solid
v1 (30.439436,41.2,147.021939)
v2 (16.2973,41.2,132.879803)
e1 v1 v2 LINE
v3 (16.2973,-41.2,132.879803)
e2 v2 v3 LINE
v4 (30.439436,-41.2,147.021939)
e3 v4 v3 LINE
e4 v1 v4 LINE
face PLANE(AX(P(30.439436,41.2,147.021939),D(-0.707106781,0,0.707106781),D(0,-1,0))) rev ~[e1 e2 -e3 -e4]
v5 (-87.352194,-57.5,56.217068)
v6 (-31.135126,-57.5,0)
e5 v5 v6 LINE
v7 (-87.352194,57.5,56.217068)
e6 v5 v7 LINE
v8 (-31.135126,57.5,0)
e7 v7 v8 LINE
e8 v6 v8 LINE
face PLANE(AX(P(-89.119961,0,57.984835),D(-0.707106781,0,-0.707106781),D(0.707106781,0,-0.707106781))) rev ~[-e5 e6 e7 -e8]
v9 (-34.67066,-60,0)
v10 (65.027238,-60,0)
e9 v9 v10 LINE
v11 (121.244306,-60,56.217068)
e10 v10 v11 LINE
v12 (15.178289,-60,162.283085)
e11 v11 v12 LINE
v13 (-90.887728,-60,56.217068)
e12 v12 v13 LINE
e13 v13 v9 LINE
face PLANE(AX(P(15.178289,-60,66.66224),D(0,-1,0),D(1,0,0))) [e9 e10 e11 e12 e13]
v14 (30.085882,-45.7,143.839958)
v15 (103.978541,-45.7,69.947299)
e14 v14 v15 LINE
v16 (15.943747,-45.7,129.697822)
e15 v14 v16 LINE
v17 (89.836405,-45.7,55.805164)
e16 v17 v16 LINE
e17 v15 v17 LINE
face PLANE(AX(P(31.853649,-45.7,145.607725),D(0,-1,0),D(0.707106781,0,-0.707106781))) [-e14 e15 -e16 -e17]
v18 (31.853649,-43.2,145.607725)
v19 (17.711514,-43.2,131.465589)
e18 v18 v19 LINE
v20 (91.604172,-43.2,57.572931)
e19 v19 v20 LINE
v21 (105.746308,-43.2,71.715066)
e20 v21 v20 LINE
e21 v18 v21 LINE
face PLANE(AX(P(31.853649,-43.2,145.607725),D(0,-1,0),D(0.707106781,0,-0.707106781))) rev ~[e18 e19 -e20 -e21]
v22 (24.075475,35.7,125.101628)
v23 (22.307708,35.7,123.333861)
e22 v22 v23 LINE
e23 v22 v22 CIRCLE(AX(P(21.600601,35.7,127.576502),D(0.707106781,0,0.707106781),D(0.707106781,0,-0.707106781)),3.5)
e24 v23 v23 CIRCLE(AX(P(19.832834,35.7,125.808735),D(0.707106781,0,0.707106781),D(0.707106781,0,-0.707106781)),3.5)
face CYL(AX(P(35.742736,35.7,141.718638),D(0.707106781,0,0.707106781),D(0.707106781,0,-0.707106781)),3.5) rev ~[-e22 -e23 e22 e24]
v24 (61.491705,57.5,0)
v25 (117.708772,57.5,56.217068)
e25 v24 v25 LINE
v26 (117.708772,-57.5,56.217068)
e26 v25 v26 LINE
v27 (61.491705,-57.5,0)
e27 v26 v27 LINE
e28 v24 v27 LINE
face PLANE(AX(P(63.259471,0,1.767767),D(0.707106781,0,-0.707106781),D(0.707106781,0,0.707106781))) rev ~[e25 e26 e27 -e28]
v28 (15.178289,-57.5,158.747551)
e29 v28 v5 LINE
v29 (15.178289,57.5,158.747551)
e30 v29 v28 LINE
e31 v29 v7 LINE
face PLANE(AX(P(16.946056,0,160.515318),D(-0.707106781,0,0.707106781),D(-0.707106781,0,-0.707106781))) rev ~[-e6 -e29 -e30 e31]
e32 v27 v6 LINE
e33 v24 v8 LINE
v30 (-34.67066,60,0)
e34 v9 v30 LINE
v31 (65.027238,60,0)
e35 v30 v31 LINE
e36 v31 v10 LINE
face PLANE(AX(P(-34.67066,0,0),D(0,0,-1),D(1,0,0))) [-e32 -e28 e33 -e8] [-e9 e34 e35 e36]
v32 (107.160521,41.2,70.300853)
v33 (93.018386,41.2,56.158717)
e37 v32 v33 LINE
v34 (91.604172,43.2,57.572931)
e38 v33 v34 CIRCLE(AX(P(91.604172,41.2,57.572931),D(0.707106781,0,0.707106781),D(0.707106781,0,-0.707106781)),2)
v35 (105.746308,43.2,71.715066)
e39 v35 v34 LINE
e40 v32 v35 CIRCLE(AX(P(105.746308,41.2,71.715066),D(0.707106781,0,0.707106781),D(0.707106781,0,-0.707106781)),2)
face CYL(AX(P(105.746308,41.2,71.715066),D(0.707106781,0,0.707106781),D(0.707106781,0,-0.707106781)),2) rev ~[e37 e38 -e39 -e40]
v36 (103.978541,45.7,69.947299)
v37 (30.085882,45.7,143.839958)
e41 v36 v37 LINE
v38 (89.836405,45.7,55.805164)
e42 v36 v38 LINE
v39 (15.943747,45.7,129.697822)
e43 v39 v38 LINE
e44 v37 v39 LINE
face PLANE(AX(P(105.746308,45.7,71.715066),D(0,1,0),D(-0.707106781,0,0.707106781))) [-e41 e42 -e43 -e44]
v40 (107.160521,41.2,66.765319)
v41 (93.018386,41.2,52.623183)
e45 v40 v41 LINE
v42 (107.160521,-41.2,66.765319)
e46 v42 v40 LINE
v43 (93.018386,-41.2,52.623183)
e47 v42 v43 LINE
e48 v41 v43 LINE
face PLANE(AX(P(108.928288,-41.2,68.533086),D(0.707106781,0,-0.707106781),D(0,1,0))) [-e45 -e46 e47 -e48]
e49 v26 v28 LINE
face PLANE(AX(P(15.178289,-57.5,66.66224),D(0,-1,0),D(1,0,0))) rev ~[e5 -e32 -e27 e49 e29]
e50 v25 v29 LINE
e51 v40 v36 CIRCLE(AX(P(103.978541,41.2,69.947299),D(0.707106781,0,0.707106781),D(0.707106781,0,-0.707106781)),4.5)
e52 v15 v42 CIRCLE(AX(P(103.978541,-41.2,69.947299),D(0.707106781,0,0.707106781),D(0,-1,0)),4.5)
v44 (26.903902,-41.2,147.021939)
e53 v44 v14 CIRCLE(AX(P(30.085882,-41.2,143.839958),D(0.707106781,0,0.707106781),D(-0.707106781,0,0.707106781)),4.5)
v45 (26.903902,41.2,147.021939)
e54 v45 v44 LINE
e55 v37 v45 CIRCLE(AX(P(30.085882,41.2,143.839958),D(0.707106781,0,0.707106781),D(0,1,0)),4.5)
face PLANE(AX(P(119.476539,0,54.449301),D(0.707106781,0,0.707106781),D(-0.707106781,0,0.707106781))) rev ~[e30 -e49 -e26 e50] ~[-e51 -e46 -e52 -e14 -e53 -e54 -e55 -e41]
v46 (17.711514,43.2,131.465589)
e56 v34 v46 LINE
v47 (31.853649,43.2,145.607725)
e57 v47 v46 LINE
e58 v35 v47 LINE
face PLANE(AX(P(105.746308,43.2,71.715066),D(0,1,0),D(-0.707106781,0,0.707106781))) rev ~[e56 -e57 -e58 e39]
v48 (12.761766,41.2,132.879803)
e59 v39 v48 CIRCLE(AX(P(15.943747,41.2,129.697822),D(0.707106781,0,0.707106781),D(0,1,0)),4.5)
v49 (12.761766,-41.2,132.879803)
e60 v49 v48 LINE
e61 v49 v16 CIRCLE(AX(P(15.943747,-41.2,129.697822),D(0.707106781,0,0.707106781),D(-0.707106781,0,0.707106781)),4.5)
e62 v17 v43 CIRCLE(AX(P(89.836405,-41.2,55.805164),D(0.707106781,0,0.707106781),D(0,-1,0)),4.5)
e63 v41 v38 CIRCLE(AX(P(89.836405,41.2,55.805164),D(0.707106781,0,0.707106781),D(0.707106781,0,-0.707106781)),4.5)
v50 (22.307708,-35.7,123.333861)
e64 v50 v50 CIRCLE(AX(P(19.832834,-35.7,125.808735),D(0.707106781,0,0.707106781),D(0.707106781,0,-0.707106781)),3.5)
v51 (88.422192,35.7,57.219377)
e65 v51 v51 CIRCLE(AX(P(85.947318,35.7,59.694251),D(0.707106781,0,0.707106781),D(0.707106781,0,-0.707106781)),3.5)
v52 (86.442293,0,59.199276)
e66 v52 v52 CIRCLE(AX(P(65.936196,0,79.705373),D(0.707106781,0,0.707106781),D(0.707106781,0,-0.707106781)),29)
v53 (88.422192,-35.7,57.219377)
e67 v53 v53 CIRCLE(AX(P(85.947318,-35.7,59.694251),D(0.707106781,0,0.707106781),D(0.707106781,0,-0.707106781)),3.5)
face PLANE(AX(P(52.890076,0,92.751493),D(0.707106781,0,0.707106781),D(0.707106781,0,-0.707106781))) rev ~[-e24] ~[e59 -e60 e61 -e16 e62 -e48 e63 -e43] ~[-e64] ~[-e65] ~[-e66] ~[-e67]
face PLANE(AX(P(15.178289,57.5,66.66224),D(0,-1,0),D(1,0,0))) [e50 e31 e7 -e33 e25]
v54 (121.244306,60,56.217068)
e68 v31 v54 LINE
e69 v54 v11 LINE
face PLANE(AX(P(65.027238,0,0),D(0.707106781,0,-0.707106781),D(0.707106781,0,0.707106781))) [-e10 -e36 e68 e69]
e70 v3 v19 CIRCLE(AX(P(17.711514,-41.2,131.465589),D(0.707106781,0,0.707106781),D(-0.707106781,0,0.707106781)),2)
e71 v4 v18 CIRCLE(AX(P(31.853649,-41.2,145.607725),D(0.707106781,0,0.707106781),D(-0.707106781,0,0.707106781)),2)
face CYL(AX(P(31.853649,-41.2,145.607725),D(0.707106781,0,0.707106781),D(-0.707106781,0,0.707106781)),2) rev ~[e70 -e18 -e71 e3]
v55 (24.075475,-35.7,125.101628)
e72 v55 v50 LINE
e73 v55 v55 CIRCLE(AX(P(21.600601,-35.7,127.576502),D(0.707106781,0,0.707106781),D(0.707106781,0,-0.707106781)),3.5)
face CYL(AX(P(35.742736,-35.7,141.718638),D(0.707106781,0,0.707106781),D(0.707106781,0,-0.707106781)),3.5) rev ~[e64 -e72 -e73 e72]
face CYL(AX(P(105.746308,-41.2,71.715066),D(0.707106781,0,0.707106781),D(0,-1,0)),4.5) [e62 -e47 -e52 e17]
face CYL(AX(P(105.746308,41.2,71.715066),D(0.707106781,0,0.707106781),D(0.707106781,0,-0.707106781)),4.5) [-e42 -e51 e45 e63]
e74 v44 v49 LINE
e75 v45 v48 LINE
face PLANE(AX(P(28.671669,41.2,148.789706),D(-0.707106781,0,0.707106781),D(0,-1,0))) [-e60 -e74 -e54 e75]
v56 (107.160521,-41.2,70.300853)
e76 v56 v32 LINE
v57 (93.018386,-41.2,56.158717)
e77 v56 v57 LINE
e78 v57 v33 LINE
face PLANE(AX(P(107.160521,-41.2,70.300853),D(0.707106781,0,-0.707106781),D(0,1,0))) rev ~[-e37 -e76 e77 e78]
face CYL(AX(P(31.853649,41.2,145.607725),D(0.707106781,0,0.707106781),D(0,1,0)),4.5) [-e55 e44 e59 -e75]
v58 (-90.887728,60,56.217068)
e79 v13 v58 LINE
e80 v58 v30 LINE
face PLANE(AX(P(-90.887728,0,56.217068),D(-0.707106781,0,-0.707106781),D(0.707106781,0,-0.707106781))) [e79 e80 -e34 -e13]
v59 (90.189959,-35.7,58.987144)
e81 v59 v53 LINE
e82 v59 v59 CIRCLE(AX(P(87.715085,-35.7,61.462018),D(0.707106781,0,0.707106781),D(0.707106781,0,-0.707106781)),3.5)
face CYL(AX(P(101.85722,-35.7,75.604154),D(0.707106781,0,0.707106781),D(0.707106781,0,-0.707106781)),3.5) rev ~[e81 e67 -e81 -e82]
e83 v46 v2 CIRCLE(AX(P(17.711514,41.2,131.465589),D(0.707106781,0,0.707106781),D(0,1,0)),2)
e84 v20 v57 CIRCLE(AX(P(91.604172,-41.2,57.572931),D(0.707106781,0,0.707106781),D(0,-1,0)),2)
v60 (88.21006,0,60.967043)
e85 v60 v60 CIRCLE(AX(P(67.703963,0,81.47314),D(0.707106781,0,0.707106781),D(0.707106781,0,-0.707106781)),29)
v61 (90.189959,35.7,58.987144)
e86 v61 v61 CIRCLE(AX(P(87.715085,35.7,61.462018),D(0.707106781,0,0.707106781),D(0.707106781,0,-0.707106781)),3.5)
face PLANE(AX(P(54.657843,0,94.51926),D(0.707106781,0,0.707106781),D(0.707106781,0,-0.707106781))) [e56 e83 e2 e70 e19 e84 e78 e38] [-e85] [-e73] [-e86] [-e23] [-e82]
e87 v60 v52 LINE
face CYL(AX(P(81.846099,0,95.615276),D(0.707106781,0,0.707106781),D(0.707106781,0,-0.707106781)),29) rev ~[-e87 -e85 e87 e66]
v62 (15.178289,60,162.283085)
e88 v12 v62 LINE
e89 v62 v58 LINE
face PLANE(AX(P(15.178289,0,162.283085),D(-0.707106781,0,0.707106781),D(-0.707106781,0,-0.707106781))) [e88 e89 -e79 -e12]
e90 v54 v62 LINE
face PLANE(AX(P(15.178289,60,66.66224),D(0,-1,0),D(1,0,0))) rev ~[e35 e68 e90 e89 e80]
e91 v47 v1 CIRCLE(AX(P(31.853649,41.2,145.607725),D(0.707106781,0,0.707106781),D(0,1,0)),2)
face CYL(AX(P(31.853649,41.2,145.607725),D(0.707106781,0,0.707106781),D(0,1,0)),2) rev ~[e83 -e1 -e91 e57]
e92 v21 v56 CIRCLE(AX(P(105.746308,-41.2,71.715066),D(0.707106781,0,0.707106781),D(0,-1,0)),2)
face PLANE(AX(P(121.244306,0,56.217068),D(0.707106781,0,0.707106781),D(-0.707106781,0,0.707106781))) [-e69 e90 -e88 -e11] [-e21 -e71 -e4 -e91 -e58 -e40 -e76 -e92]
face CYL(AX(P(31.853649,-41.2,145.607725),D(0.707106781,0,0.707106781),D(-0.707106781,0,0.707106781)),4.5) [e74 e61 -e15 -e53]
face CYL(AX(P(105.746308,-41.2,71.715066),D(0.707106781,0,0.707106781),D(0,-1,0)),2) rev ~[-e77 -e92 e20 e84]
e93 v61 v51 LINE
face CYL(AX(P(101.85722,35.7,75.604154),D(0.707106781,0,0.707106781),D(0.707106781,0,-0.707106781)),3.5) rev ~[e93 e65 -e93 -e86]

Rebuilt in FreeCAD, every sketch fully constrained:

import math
import FreeCAD as App
import Part
import Sketcher
from FreeCAD import Vector


def faces_at(feature, points):
    """Names of the faces that lie closest to the given points."""
    faces = feature.Shape.Faces
    near = lambda p: min(range(len(faces)), key=lambda i: faces[i].distToShape(Part.Vertex(*p))[0])
    return sorted({f"Face{near(p) + 1}" for p in points})


def add_polygon(sketch, points):
    """Adds a closed chain of lines whose ends are joined by coincident constraints."""
    first, n = sketch.GeometryCount, len(points)
    for a, b in zip(points, points[1:] + points[:1]):
        sketch.addGeometry(Part.LineSegment(App.Vector(*a, 0), App.Vector(*b, 0)), False)
    for i in range(n):
        sketch.addConstraint(Sketcher.Constraint("Coincident", first + i, 2, first + (i + 1) % n, 1))

doc = App.newDocument("Part")
params = doc.addObject("Spreadsheet::Sheet", "Params")
for row, (alias, value) in enumerate([
    ("sketch1_length", "150 mm"),
    ("pad1_length", "120 mm"),
    ("sketch2_radius", "2 mm"),
    ("sketch2_width", "104.5 mm"),
    ("sketch2_height", "82.4 mm"),
    ("pocket1_length", "20 mm"),
    ("thickness_wall", "2.5 mm"),
    ("sketch3_diameter", "58 mm"),
    ("sketch3_diameter2", "7 mm"),
    ("pocket2_length", "40 mm"),
], start=1):
    params.set(f"A{row}", alias)
    params.set(f"B{row}", "=" + value)
    params.setAlias(f"B{row}", alias)

body = doc.addObject("PartDesign::Body", "Body")

# Sketch on XZ plane
sketch1 = body.newObject("Sketcher::SketchObject", "Sketch")
sketch1.AttachmentSupport = (doc.getObject("XZ_Plane"), [""])
sketch1.MapMode = "FlatFace"
add_polygon(sketch1, [(-35, 0), (65, 0), (121, 56), (15, 162), (-91, 56)])  # lines 0-4
sketch1.addConstraint([
    Sketcher.Constraint("Horizontal", 0),
    Sketcher.Constraint("PointOnObject", 0, 2, -1),
    Sketcher.Constraint("Perpendicular", 1, 2),
    Sketcher.Constraint("Perpendicular", 2, 3),
    Sketcher.Constraint("Perpendicular", 3, 4),
    Sketcher.Constraint("Horizontal", 1, 2, 3, 2),
    Sketcher.Constraint("Equal", 2, 3),
    Sketcher.Constraint("Distance", 2, 150.0),
    Sketcher.Constraint("DistanceX", 0, 1, 0, 2, 99.697899),
    Sketcher.Constraint("DistanceX", -1, 1, 0, 2, 65.027238),
])
sketch1.setExpression("Constraints[12]", "Params.sketch1_length")
pad1 = body.newObject("PartDesign::Pad", "Pad")
pad1.Profile = sketch1
pad1.setExpression("Length", "Params.pad1_length")
pad1.Midplane = True

# Sketch on an angled plane
sketch2 = body.newObject("Sketcher::SketchObject", "Sketch001")
sketch2.Placement = App.Placement(Vector(88.730687, 0, 88.730687), App.Rotation(Vector(0.707106781, 0, -0.707106781), Vector(0, 0.999999999, 0), Vector(0.707106781, 0, 0.707106781), "ZXY"))
sketch2.addGeometry([
    Part.ArcOfCircle(Part.Circle(Vector(24.1, 41.2, 0), Vector(0, 0, 1), 2), math.radians(0), math.radians(90)),  # 0
    Part.LineSegment(Vector(24.1, 43.2, 0), Vector(-80.4, 43.2, 0)),  # 1
    Part.ArcOfCircle(Part.Circle(Vector(-80.4, 41.2, 0), Vector(0, 0, 1), 2), math.radians(90), math.radians(180)),  # 2
    Part.LineSegment(Vector(-82.4, 41.2, 0), Vector(-82.4, -41.2, 0)),  # 3
    Part.ArcOfCircle(Part.Circle(Vector(-80.4, -41.2, 0), Vector(0, 0, 1), 2), math.radians(180), math.radians(270)),  # 4
    Part.LineSegment(Vector(-80.4, -43.2, 0), Vector(24.1, -43.2, 0)),  # 5
    Part.ArcOfCircle(Part.Circle(Vector(24.1, -41.2, 0), Vector(0, 0, 1), 2), math.radians(-90), math.radians(0)),  # 6
    Part.LineSegment(Vector(26.1, -41.2, 0), Vector(26.1, 41.2, 0)),  # 7
], False)
sketch2.addConstraint([
    Sketcher.Constraint("Tangent", 0, 2, 1, 1),
    Sketcher.Constraint("Tangent", 1, 2, 2, 1),
    Sketcher.Constraint("Tangent", 2, 2, 3, 1),
    Sketcher.Constraint("Tangent", 3, 2, 4, 1),
    Sketcher.Constraint("Tangent", 4, 2, 5, 1),
    Sketcher.Constraint("Tangent", 5, 2, 6, 1),
    Sketcher.Constraint("Tangent", 6, 2, 7, 1),
    Sketcher.Constraint("Tangent", 7, 2, 0, 1),
    Sketcher.Constraint("Horizontal", 1),
    Sketcher.Constraint("Vertical", 3),
    Sketcher.Constraint("Horizontal", 5),
    Sketcher.Constraint("Vertical", 7),
    Sketcher.Constraint("Equal", 0, 2),
    Sketcher.Constraint("Equal", 2, 4),
    Sketcher.Constraint("Equal", 4, 6),
    Sketcher.Constraint("Radius", 0, 2.0),
    Sketcher.Constraint("DistanceX", 1, 2, 1, 1, 104.5),
    Sketcher.Constraint("DistanceY", 3, 2, 3, 1, 82.4),
    Sketcher.Constraint("DistanceY", -1, 1, 0, 3, 41.2),
    Sketcher.Constraint("DistanceX", -1, 1, 0, 3, 24.063722),
])
sketch2.setExpression("Constraints[15]", "Params.sketch2_radius")
sketch2.setExpression("Constraints[16]", "Params.sketch2_width")
sketch2.setExpression("Constraints[17]", "Params.sketch2_height")
pocket1 = body.newObject("PartDesign::Pocket", "Pocket")
pocket1.Profile = sketch2
pocket1.setExpression("Length", "Params.pocket1_length")
doc.recompute()

thickness = body.newObject("PartDesign::Thickness", "Thickness")
thickness.Base = (pocket1, faces_at(pocket1, [(15.178, 0, 0)]))
thickness.setExpression("Value", "Params.thickness_wall")
thickness.Reversed = True
thickness.Join = "Intersection"

# Sketch on an angled plane
sketch3 = body.newObject("Sketcher::SketchObject", "Sketch002")
sketch3.Placement = App.Placement(Vector(88.730687, 0, 88.730687), App.Rotation(Vector(0.707106781, 0, -0.707106781), Vector(0, 0.999999999, 0), Vector(0.707106781, 0, 0.707106781), "ZXY"))
sketch3.addGeometry([
    Part.Circle(Vector(-9.7, 0, 0), Vector(0, 0, 1), 29),  # 0
    Part.Circle(Vector(-74.9, 35.7, 0), Vector(0, 0, 1), 3.5),  # 1
    Part.Circle(Vector(-74.9, -35.7, 0), Vector(0, 0, 1), 3.5),  # 2
    Part.Circle(Vector(18.6, -35.7, 0), Vector(0, 0, 1), 3.5),  # 3
    Part.Circle(Vector(18.6, 35.7, 0), Vector(0, 0, 1), 3.5),  # 4
], False)
sketch3.addConstraint([
    Sketcher.Constraint("Equal", 1, 2),
    Sketcher.Constraint("Equal", 2, 3),
    Sketcher.Constraint("Equal", 3, 4),
    Sketcher.Constraint("Symmetric", 1, 3, 2, 3, -1),
    Sketcher.Constraint("Symmetric", 3, 3, 4, 3, -1),
    Sketcher.Constraint("PointOnObject", 0, 3, -1),
    Sketcher.Constraint("Horizontal", 2, 3, 3, 3),
    Sketcher.Constraint("Diameter", 0, 58.0),
    Sketcher.Constraint("Diameter", 1, 7.0),
    Sketcher.Constraint("DistanceY", -1, 1, 1, 3, 35.7),
    Sketcher.Constraint("DistanceX", 1, 3, 0, 3, 65.2),
    Sketcher.Constraint("DistanceX", 0, 3, 3, 3, 28.3),
    Sketcher.Constraint("DistanceX", 0, 3, -1, 1, 9.736278),
])
sketch3.setExpression("Constraints[7]", "Params.sketch3_diameter")
sketch3.setExpression("Constraints[8]", "Params.sketch3_diameter2")
pocket2 = body.newObject("PartDesign::Pocket", "Pocket001")
pocket2.Profile = sketch3
pocket2.setExpression("Length", "Params.pocket2_length")

doc.recompute()
